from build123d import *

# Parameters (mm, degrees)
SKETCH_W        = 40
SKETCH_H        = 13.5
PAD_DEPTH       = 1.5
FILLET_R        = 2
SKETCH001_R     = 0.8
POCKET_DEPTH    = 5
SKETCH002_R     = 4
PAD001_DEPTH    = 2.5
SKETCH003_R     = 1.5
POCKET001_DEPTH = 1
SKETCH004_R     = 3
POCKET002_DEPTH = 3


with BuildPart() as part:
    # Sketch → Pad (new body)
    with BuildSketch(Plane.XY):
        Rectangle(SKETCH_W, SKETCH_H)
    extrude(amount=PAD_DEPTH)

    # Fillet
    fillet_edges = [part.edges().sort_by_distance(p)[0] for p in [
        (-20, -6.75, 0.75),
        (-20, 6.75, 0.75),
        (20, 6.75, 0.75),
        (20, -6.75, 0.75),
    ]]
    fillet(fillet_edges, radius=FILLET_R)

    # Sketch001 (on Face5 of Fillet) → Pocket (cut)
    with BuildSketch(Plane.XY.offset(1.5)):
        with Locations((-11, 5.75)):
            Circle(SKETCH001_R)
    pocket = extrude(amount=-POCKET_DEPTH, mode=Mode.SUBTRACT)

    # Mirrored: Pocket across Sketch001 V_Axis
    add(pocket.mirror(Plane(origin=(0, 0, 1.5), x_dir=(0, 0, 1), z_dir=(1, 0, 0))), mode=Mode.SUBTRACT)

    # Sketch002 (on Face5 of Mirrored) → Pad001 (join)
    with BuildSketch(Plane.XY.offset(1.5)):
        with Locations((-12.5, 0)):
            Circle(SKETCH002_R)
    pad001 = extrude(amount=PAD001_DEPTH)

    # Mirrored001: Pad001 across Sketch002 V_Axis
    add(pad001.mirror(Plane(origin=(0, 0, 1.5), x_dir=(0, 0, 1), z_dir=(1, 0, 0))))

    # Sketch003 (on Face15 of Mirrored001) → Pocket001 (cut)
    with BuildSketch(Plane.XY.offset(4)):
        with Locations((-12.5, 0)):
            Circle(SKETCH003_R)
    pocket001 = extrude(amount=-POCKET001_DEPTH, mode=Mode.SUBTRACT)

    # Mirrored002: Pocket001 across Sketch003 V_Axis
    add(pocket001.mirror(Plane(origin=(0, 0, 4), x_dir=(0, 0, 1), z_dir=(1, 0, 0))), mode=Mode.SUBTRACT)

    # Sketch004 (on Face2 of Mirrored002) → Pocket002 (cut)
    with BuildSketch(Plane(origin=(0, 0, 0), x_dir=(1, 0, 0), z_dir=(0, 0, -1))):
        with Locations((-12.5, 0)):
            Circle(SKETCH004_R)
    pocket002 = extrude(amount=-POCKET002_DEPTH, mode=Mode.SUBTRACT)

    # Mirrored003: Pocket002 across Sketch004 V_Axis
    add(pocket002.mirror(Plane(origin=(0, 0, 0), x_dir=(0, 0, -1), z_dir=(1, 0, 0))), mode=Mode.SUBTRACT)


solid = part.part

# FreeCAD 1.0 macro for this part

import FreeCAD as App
import Part
import Sketcher
from FreeCAD import Vector
Q = App.Units.Quantity


def edges_at(feature, points):
    """Names of the edges that pass closest to the given points."""
    edges = feature.Shape.Edges
    near = lambda p: min(range(len(edges)), key=lambda i: edges[i].distToShape(Part.Vertex(*p))[0])
    return sorted({f"Edge{near(p) + 1}" for p in points})

doc = App.newDocument("Part")
body = doc.addObject("PartDesign::Body", "Body")

# Sketch on XY plane
sketch1 = body.newObject("Sketcher::SketchObject", "Sketch")
sketch1.AttachmentSupport = (doc.getObject("XY_Plane"), [""])
sketch1.MapMode = "FlatFace"
sketch1.addGeometry([
    Part.LineSegment(Vector(-20, 6.75, 0), Vector(-20, -6.75, 0)),
    Part.LineSegment(Vector(-20, -6.75, 0), Vector(20, -6.75, 0)),
    Part.LineSegment(Vector(20, -6.75, 0), Vector(20, 6.75, 0)),
    Part.LineSegment(Vector(20, 6.75, 0), Vector(-20, 6.75, 0)),
], False)
sketch1.addConstraint([
    Sketcher.Constraint("Coincident", 0, 2, 1, 1),
    Sketcher.Constraint("Coincident", 1, 2, 2, 1),
    Sketcher.Constraint("Coincident", 2, 2, 3, 1),
    Sketcher.Constraint("Coincident", 3, 2, 0, 1),
    Sketcher.Constraint("Vertical", 0),
    Sketcher.Constraint("Horizontal", 1),
    Sketcher.Constraint("Vertical", 2),
    Sketcher.Constraint("Horizontal", 3),
    Sketcher.Constraint("Symmetric", 0, 2, 2, 2, -1, 1),
    Sketcher.Constraint("DistanceX", 1, 1, 1, 2, Q("40 mm")),
    Sketcher.Constraint("DistanceY", 0, 2, 0, 1, Q("13.5 mm")),
])
pad1 = body.newObject("PartDesign::Pad", "Pad")
pad1.Profile = sketch1
pad1.Length = 1.5
doc.recompute()

fillet = body.newObject("PartDesign::Fillet", "Fillet")
fillet.Base = (pad1, edges_at(pad1, [
    (-20, -6.75, 0.75),
    (-20, 6.75, 0.75),
    (20, 6.75, 0.75),
    (20, -6.75, 0.75),
]))
fillet.Radius = 2

# Sketch on XY plane
sketch2 = body.newObject("Sketcher::SketchObject", "Sketch001")
sketch2.AttachmentSupport = (doc.getObject("XY_Plane"), [""])
sketch2.MapMode = "FlatFace"
sketch2.AttachmentOffset = App.Placement(Vector(0, 0, 1.5), App.Rotation())
sketch2.addGeometry(Part.Circle(Vector(-11, 5.75, 0), Vector(0, 0, 1), 0.8), False)
sketch2.addConstraint([
    Sketcher.Constraint("Diameter", 0, Q("1.6 mm")),
    Sketcher.Constraint("DistanceX", 0, 3, -1, 1, Q("11 mm")),
    Sketcher.Constraint("DistanceY", -1, 1, 0, 3, Q("5.75 mm")),
])
pocket1 = body.newObject("PartDesign::Pocket", "Pocket")
pocket1.Profile = sketch2
pocket1.Length = 5
doc.recompute()

mirrored = body.newObject("PartDesign::Mirrored", "Mirrored")
mirrored.Originals = [pocket1]
mirrored.MirrorPlane = (doc.getObject("YZ_Plane"), [""])
body.Tip = mirrored

# Sketch on XY plane
sketch3 = body.newObject("Sketcher::SketchObject", "Sketch002")
sketch3.AttachmentSupport = (doc.getObject("XY_Plane"), [""])
sketch3.MapMode = "FlatFace"
sketch3.AttachmentOffset = App.Placement(Vector(0, 0, 1.5), App.Rotation())
sketch3.addGeometry(Part.Circle(Vector(-12.5, 0, 0), Vector(0, 0, 1), 4), False)
sketch3.addConstraint([
    Sketcher.Constraint("PointOnObject", 0, 3, -1),
    Sketcher.Constraint("Diameter", 0, Q("8 mm")),
    Sketcher.Constraint("DistanceX", 0, 3, -1, 1, Q("12.5 mm")),
])
pad2 = body.newObject("PartDesign::Pad", "Pad001")
pad2.Profile = sketch3
pad2.Length = 2.5
doc.recompute()

mirrored2 = body.newObject("PartDesign::Mirrored", "Mirrored001")
mirrored2.Originals = [pad2]
mirrored2.MirrorPlane = (doc.getObject("YZ_Plane"), [""])
body.Tip = mirrored2

# Sketch on XY plane
sketch4 = body.newObject("Sketcher::SketchObject", "Sketch003")
sketch4.AttachmentSupport = (doc.getObject("XY_Plane"), [""])
sketch4.MapMode = "FlatFace"
sketch4.AttachmentOffset = App.Placement(Vector(0, 0, 4), App.Rotation())
sketch4.addGeometry(Part.Circle(Vector(-12.5, 0, 0), Vector(0, 0, 1), 1.5), False)
sketch4.addConstraint([
    Sketcher.Constraint("PointOnObject", 0, 3, -1),
    Sketcher.Constraint("Diameter", 0, Q("3 mm")),
    Sketcher.Constraint("DistanceX", 0, 3, -1, 1, Q("12.5 mm")),
])
pocket2 = body.newObject("PartDesign::Pocket", "Pocket001")
pocket2.Profile = sketch4
pocket2.Length = 1
doc.recompute()

mirrored3 = body.newObject("PartDesign::Mirrored", "Mirrored002")
mirrored3.Originals = [pocket2]
mirrored3.MirrorPlane = (doc.getObject("YZ_Plane"), [""])
body.Tip = mirrored3

# Sketch on XY plane
sketch5 = body.newObject("Sketcher::SketchObject", "Sketch004")
sketch5.AttachmentSupport = (doc.getObject("XY_Plane"), [""])
sketch5.MapMode = "FlatFace"
sketch5.addGeometry(Part.Circle(Vector(-12.5, 0, 0), Vector(0, 0, 1), 3), False)
sketch5.addConstraint([
    Sketcher.Constraint("PointOnObject", 0, 3, -1),
    Sketcher.Constraint("Diameter", 0, Q("6 mm")),
    Sketcher.Constraint("DistanceX", 0, 3, -1, 1, Q("12.5 mm")),
])
pocket3 = body.newObject("PartDesign::Pocket", "Pocket002")
pocket3.Profile = sketch5
pocket3.Length = 3
pocket3.Reversed = True
doc.recompute()

mirrored4 = body.newObject("PartDesign::Mirrored", "Mirrored003")
mirrored4.Originals = [pocket3]
mirrored4.MirrorPlane = (doc.getObject("YZ_Plane"), [""])
body.Tip = mirrored4

doc.recompute()
